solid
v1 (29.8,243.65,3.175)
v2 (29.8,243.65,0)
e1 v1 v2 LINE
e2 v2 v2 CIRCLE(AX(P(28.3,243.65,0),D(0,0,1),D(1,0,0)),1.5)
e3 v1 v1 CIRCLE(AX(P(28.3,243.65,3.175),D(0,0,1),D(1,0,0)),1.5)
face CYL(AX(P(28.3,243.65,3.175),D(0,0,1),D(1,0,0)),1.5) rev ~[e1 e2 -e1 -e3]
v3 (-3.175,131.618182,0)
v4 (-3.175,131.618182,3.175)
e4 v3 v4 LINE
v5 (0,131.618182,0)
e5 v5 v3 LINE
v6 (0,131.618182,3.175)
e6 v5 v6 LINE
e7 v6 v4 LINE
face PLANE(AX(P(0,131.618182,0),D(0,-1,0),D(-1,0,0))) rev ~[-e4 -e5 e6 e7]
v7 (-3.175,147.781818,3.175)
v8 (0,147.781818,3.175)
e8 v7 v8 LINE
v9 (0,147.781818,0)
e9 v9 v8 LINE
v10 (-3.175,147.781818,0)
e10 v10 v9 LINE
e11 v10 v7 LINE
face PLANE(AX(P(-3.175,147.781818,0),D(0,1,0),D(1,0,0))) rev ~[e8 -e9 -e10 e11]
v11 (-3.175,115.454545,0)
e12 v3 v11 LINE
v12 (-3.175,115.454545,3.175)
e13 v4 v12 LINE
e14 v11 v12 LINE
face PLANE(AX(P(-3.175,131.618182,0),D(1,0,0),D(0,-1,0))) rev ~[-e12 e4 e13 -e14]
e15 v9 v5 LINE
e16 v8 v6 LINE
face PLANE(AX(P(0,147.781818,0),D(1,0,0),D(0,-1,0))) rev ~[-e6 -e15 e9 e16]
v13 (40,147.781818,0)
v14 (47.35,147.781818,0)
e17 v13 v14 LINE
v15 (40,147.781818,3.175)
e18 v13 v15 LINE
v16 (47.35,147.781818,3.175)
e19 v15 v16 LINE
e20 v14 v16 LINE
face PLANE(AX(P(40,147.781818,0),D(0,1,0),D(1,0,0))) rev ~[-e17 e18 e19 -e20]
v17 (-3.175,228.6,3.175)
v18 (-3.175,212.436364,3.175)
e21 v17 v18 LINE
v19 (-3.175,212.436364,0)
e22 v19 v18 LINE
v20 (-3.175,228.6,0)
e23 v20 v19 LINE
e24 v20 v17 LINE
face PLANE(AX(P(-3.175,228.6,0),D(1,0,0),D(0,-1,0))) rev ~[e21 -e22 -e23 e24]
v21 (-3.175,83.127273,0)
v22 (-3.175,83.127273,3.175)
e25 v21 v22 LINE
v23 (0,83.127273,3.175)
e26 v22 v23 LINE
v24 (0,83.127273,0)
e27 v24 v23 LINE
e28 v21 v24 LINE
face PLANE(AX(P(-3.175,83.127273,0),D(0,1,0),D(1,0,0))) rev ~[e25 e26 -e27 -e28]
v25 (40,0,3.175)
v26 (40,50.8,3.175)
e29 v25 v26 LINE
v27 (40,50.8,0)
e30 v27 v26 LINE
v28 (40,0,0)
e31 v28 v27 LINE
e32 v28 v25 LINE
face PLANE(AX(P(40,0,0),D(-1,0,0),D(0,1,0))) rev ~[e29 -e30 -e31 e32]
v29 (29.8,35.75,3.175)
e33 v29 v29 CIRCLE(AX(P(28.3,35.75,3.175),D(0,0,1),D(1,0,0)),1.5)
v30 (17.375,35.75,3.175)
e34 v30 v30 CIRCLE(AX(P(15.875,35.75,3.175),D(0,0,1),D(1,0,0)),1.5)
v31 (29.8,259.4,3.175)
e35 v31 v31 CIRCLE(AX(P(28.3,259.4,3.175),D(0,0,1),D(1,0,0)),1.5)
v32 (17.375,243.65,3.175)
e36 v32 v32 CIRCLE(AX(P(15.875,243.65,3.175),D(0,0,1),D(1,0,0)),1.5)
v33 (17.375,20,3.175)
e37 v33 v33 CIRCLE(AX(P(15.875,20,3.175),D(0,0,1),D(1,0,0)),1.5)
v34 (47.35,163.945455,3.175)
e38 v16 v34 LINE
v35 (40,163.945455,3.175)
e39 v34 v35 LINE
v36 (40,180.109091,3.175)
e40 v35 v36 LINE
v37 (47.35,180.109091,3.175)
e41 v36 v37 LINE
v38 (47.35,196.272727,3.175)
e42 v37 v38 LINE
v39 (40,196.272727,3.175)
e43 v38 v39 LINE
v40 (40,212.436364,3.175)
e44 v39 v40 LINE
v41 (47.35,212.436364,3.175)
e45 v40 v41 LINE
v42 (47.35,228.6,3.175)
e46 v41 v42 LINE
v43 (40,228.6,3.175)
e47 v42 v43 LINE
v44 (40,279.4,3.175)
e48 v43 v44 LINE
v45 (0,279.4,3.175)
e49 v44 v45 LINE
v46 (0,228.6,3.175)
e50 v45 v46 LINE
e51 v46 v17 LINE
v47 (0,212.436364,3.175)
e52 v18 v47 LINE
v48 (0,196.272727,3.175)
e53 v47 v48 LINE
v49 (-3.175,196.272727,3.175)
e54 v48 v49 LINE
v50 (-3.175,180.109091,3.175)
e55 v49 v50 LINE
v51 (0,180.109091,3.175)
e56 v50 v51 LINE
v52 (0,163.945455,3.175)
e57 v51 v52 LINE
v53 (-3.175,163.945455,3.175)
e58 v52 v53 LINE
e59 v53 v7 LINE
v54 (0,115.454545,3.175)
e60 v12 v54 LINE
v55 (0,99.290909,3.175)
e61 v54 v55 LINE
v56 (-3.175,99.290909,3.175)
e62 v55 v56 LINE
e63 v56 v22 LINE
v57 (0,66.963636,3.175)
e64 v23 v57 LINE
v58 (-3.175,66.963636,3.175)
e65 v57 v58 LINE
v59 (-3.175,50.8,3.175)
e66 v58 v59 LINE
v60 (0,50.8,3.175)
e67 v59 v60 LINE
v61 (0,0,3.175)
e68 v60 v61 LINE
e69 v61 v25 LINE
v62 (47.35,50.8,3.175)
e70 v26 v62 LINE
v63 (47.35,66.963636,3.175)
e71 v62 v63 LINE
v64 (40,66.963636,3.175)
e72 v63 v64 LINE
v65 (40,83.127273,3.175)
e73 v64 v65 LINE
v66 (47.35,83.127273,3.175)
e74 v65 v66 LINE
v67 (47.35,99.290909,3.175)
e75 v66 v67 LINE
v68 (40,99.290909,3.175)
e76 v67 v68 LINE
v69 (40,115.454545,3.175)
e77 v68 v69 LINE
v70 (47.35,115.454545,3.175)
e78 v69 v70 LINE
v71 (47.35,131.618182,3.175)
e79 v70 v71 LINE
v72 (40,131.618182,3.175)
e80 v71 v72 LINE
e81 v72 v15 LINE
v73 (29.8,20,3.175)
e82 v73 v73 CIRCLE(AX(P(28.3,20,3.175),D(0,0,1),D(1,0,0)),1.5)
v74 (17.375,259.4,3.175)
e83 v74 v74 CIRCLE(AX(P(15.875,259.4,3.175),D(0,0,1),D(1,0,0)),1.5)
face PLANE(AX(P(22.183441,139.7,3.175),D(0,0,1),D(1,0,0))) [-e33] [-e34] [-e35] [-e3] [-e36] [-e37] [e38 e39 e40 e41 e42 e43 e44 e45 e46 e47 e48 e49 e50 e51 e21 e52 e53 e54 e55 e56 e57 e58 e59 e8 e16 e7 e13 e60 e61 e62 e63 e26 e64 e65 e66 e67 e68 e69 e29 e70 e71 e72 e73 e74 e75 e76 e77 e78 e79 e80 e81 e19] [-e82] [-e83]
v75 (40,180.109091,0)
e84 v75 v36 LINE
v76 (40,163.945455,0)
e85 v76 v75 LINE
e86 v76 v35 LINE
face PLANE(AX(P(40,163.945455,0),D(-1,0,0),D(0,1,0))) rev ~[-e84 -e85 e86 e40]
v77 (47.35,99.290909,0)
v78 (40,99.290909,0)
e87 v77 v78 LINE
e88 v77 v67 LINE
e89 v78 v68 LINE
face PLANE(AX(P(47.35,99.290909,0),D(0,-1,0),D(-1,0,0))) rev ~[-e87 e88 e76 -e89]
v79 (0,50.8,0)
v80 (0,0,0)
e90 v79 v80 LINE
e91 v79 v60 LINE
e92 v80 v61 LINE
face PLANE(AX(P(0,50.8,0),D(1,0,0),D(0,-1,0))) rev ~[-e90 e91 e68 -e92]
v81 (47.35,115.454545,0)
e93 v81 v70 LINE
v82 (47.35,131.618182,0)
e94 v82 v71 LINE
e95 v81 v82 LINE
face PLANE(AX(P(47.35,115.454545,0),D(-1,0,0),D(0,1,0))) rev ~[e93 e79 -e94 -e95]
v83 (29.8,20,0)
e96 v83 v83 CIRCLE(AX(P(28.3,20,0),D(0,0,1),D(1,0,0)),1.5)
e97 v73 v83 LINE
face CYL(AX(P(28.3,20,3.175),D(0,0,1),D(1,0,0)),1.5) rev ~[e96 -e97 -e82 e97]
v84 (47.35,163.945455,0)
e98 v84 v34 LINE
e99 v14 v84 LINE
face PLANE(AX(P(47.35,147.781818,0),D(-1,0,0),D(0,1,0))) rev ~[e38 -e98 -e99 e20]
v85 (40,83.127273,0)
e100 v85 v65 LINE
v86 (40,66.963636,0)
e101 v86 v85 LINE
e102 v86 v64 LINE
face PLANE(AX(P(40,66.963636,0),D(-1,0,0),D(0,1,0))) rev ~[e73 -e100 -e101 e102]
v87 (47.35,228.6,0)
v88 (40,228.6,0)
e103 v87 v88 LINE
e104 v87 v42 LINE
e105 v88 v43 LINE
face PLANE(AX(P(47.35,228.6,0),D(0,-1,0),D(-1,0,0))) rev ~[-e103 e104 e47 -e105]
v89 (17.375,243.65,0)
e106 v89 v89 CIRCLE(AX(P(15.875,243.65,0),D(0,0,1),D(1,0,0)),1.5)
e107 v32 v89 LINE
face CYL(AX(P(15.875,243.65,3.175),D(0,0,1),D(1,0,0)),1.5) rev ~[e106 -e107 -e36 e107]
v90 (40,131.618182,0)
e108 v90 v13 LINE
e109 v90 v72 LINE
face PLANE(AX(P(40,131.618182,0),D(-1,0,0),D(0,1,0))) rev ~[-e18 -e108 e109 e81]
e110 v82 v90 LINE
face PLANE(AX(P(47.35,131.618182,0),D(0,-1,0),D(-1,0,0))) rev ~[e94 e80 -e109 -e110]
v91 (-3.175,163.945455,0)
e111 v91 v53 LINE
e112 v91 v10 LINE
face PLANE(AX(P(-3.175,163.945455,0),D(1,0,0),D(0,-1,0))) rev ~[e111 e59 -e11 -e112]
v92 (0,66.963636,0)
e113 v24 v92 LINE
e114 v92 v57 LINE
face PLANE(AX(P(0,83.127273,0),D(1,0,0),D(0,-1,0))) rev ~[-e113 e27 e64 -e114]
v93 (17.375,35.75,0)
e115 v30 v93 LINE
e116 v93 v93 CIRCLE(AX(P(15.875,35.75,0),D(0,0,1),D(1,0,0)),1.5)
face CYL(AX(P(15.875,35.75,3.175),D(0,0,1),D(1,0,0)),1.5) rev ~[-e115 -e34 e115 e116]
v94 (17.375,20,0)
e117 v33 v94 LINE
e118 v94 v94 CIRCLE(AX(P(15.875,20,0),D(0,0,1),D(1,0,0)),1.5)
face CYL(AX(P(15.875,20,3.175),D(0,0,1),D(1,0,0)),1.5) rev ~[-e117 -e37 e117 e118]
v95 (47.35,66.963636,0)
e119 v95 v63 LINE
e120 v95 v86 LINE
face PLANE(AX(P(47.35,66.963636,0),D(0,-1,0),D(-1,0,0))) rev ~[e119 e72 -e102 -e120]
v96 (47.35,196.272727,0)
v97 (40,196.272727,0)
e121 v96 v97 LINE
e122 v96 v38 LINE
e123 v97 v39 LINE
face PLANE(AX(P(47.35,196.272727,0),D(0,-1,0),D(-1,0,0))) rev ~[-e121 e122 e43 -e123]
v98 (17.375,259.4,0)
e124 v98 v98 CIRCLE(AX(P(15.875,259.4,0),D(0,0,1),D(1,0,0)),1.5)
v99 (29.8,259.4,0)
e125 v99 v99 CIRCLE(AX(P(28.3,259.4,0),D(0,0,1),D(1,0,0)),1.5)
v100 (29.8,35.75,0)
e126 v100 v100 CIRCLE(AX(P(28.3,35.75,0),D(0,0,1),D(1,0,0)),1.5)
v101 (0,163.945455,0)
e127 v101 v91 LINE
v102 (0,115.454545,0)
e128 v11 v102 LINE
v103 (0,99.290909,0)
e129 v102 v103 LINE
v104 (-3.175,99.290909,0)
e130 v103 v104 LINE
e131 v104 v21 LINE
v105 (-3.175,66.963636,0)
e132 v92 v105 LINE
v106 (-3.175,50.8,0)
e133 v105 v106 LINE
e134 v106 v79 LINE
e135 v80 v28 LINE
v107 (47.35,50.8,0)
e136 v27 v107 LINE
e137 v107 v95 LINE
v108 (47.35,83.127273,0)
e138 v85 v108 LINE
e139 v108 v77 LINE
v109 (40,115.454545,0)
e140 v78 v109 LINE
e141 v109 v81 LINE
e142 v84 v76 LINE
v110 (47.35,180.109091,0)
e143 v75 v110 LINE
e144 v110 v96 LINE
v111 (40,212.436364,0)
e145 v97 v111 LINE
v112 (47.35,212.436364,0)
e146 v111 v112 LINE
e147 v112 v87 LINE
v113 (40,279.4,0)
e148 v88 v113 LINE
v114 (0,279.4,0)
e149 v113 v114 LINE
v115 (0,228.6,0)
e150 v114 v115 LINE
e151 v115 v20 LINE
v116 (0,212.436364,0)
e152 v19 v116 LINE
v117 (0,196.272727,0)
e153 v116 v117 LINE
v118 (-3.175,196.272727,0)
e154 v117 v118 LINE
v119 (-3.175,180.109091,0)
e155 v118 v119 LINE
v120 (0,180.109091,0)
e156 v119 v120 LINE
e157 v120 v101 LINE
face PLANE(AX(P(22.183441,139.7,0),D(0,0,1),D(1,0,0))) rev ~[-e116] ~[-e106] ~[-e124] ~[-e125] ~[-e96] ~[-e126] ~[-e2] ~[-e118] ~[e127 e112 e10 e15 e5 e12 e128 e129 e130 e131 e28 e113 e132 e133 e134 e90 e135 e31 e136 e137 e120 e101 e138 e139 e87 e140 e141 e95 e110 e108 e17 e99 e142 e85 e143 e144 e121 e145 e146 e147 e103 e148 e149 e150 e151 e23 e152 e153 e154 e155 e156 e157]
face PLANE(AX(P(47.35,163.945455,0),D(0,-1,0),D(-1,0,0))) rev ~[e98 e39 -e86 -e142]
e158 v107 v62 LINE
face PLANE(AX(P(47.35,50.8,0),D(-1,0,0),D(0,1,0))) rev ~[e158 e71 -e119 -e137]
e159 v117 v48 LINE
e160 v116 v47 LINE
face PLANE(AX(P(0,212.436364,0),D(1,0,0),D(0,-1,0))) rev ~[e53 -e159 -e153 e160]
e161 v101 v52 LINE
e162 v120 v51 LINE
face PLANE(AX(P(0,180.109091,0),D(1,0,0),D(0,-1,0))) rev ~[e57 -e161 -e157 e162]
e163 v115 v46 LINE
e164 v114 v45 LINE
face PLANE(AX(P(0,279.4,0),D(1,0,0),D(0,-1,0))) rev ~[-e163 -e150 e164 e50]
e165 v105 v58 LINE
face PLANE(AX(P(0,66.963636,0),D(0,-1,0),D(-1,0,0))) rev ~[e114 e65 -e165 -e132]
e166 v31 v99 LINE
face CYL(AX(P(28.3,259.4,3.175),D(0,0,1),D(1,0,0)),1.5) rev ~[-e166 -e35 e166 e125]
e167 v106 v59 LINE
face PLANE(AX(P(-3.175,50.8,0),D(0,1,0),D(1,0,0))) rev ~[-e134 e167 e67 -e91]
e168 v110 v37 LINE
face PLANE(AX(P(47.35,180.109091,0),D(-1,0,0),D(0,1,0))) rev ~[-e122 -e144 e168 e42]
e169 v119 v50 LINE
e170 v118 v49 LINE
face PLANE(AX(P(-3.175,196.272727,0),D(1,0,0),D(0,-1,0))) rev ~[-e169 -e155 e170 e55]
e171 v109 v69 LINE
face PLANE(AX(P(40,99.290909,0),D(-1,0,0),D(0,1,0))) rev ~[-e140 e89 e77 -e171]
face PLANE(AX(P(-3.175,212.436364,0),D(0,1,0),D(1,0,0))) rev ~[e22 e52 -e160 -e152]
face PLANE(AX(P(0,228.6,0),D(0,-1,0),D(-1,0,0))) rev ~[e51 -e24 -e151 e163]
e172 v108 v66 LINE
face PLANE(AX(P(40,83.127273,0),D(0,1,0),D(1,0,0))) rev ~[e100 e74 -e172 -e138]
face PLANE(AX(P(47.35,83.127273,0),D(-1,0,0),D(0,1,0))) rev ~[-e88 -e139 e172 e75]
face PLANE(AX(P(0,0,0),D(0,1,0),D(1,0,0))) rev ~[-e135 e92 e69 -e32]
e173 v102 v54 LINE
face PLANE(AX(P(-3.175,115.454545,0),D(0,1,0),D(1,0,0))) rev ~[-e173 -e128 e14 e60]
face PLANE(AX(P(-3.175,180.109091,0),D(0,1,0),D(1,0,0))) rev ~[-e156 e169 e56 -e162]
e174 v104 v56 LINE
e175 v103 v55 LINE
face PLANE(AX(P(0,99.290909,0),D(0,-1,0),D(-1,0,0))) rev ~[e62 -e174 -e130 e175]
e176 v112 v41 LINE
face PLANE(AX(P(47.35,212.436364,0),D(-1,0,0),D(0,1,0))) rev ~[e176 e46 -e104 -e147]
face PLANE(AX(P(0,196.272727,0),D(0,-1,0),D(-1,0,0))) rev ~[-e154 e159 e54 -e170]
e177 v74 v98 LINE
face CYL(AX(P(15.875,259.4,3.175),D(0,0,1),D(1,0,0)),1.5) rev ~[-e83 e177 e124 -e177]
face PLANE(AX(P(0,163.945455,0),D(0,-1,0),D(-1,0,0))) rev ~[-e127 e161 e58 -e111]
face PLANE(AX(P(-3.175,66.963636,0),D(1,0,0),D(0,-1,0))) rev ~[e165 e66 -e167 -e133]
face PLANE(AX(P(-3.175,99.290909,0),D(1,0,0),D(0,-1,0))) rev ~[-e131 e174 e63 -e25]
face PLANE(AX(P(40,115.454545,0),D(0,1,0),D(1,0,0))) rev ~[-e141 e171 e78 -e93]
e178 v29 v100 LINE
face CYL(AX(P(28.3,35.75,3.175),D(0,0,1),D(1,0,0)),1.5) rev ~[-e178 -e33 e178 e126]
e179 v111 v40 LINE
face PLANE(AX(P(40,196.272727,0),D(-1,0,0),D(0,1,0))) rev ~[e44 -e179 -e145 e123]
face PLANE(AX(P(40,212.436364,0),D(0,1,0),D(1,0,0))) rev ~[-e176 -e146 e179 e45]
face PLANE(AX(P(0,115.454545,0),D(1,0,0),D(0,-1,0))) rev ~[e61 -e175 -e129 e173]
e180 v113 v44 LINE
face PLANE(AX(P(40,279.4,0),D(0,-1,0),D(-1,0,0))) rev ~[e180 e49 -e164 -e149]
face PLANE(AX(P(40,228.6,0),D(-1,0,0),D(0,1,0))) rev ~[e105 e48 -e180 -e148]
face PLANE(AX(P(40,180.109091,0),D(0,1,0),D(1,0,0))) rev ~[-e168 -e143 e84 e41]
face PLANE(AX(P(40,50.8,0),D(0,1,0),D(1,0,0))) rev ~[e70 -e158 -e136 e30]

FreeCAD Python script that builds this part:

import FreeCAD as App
import Part
import Sketcher
Q = App.Units.Quantity


def add_polygon(sketch, points):
    """Adds a closed chain of lines whose ends are joined by coincident constraints."""
    first, n = sketch.GeometryCount, len(points)
    for a, b in zip(points, points[1:] + points[:1]):
        sketch.addGeometry(Part.LineSegment(App.Vector(*a, 0), App.Vector(*b, 0)), False)
    for i in range(n):
        sketch.addConstraint(Sketcher.Constraint("Coincident", first + i, 2, first + (i + 1) % n, 1))

doc = App.newDocument("Part")
params = doc.addObject("Spreadsheet::Sheet", "Params")
for row, (alias, value) in enumerate([
    ("sketch1_width", "40 mm"),
    ("sketch1_height", "50.8 mm"),
    ("sketch1_width2", "7.35 mm"),
    ("pad1_length", "3.175 mm"),
    ("sketch2_diameter", "3 mm"),
    ("pocket1_length", "3.175 mm"),
], start=1):
    params.set(f"A{row}", alias)
    params.set(f"B{row}", "=" + value)
    params.setAlias(f"B{row}", alias)

body = doc.addObject("PartDesign::Body", "Body")

sketch1 = body.newObject("Sketcher::SketchObject", "Sketch")
sketch1.AttachmentSupport = (doc.getObject("XY_Plane"), [""])
sketch1.MapMode = "FlatFace"
add_polygon(sketch1, [(40, 279.4), (0, 279.4), (0, 228.6), (-3.175, 228.6), (-3.175, 212.436364), (0, 212.436364), (0, 196.272727), (-3.175, 196.272727), (-3.175, 180.109091), (0, 180.109091), (0, 163.945455), (-3.175, 163.945455), (-3.175, 147.781818), (0, 147.781818), (0, 131.618182), (-3.175, 131.618182), (-3.175, 115.454545), (0, 115.454545), (0, 99.290909), (-3.175, 99.290909), (-3.175, 83.127273), (0, 83.127273), (0, 66.963636), (-3.175, 66.963636), (-3.175, 50.8), (0, 50.8), (0, 0), (40, 0), (40, 50.8), (47.35, 50.8), (47.35, 66.963636), (40, 66.963636), (40, 83.127273), (47.35, 83.127273), (47.35, 99.290909), (40, 99.290909), (40, 115.454545), (47.35, 115.454545), (47.35, 131.618182), (40, 131.618182), (40, 147.781818), (47.35, 147.781818), (47.35, 163.945455), (40, 163.945455), (40, 180.109091), (47.35, 180.109091), (47.35, 196.272727), (40, 196.272727), (40, 212.436364), (47.35, 212.436364), (47.35, 228.6), (40, 228.6)])
sketch1.addConstraint([
    Sketcher.Constraint("Horizontal", 0),
    Sketcher.Constraint("Vertical", 1),
    Sketcher.Constraint("Horizontal", 2),
    Sketcher.Constraint("Vertical", 3),
    Sketcher.Constraint("Horizontal", 4),
    Sketcher.Constraint("Vertical", 5),
    Sketcher.Constraint("Horizontal", 6),
    Sketcher.Constraint("Vertical", 7),
    Sketcher.Constraint("Horizontal", 8),
    Sketcher.Constraint("Vertical", 9),
    Sketcher.Constraint("Horizontal", 10),
    Sketcher.Constraint("Vertical", 11),
    Sketcher.Constraint("Horizontal", 12),
    Sketcher.Constraint("Vertical", 13),
    Sketcher.Constraint("Horizontal", 14),
    Sketcher.Constraint("Vertical", 15),
    Sketcher.Constraint("Horizontal", 16),
    Sketcher.Constraint("Vertical", 17),
    Sketcher.Constraint("Horizontal", 18),
    Sketcher.Constraint("Vertical", 19),
    Sketcher.Constraint("Horizontal", 20),
    Sketcher.Constraint("Vertical", 21),
    Sketcher.Constraint("Horizontal", 22),
    Sketcher.Constraint("Vertical", 23),
    Sketcher.Constraint("Horizontal", 24),
    Sketcher.Constraint("Vertical", 25),
    Sketcher.Constraint("Horizontal", 26),
    Sketcher.Constraint("Vertical", 27),
    Sketcher.Constraint("Horizontal", 28),
    Sketcher.Constraint("Vertical", 29),
    Sketcher.Constraint("Horizontal", 30),
    Sketcher.Constraint("Vertical", 31),
    Sketcher.Constraint("Horizontal", 32),
    Sketcher.Constraint("Vertical", 33),
    Sketcher.Constraint("Horizontal", 34),
    Sketcher.Constraint("Vertical", 35),
    Sketcher.Constraint("Horizontal", 36),
    Sketcher.Constraint("Vertical", 37),
    Sketcher.Constraint("Horizontal", 38),
    Sketcher.Constraint("Vertical", 39),
    Sketcher.Constraint("Horizontal", 40),
    Sketcher.Constraint("Vertical", 41),
    Sketcher.Constraint("Horizontal", 42),
    Sketcher.Constraint("Vertical", 43),
    Sketcher.Constraint("Horizontal", 44),
    Sketcher.Constraint("Vertical", 45),
    Sketcher.Constraint("Horizontal", 46),
    Sketcher.Constraint("Vertical", 47),
    Sketcher.Constraint("Horizontal", 48),
    Sketcher.Constraint("Vertical", 49),
    Sketcher.Constraint("Horizontal", 50),
    Sketcher.Constraint("Vertical", 51),
    Sketcher.Constraint("Coincident", 25, 2, -1, 1),
    Sketcher.Constraint("PointOnObject", 0, 2, -2),
    Sketcher.Constraint("PointOnObject", 4, 2, -2),
    Sketcher.Constraint("PointOnObject", 8, 2, -2),
    Sketcher.Constraint("PointOnObject", 12, 2, -2),
    Sketcher.Constraint("PointOnObject", 16, 2, -2),
    Sketcher.Constraint("PointOnObject", 20, 2, -2),
    Sketcher.Constraint("Horizontal", 24, 2, 27, 2),
    Sketcher.Constraint("Horizontal", 22, 2, 29, 2),
    Sketcher.Constraint("Horizontal", 20, 2, 31, 2),
    Sketcher.Constraint("Horizontal", 18, 2, 33, 2),
    Sketcher.Constraint("Horizontal", 16, 2, 35, 2),
    Sketcher.Constraint("Horizontal", 14, 2, 37, 2),
    Sketcher.Constraint("Horizontal", 12, 2, 39, 2),
    Sketcher.Constraint("Horizontal", 10, 2, 41, 2),
    Sketcher.Constraint("Horizontal", 8, 2, 43, 2),
    Sketcher.Constraint("Horizontal", 6, 2, 45, 2),
    Sketcher.Constraint("Horizontal", 4, 2, 47, 2),
    Sketcher.Constraint("Horizontal", 2, 2, 49, 2),
    Sketcher.Constraint("Vertical", 3, 2, 6, 2),
    Sketcher.Constraint("Vertical", 7, 2, 10, 2),
    Sketcher.Constraint("Vertical", 11, 2, 14, 2),
    Sketcher.Constraint("Vertical", 15, 2, 18, 2),
    Sketcher.Constraint("Vertical", 19, 2, 22, 2),
    Sketcher.Constraint("Vertical", 27, 2, 30, 2),
    Sketcher.Constraint("Vertical", 29, 2, 32, 2),
    Sketcher.Constraint("Vertical", 31, 2, 34, 2),
    Sketcher.Constraint("Vertical", 33, 2, 36, 2),
    Sketcher.Constraint("Vertical", 35, 2, 38, 2),
    Sketcher.Constraint("Vertical", 37, 2, 40, 2),
    Sketcher.Constraint("Vertical", 39, 2, 42, 2),
    Sketcher.Constraint("Vertical", 41, 2, 44, 2),
    Sketcher.Constraint("Vertical", 43, 2, 46, 2),
    Sketcher.Constraint("Vertical", 45, 2, 48, 2),
    Sketcher.Constraint("Vertical", 47, 2, 50, 2),
    Sketcher.Constraint("Equal", 3, 5),
    Sketcher.Constraint("Equal", 5, 7),
    Sketcher.Constraint("Equal", 7, 9),
    Sketcher.Constraint("Equal", 9, 11),
    Sketcher.Constraint("Equal", 11, 13),
    Sketcher.Constraint("Equal", 13, 15),
    Sketcher.Constraint("Equal", 15, 17),
    Sketcher.Constraint("Equal", 17, 19),
    Sketcher.Constraint("Equal", 19, 21),
    Sketcher.Constraint("Equal", 21, 23),
    Sketcher.Constraint("Equal", 1, 25),
    Sketcher.Constraint("DistanceX", 0, 2, 0, 1, Q("40 mm")),
    Sketcher.Constraint("DistanceY", 1, 2, 1, 1, Q("50.8 mm")),
    Sketcher.Constraint("DistanceX", 28, 1, 28, 2, Q("7.35 mm")),
    Sketcher.Constraint("DistanceY", -1, 1, 0, 2, Q("279.4 mm")),
    Sketcher.Constraint("DistanceX", 2, 2, 2, 1, Q("3.175 mm")),
])
sketch1.setExpression("Constraints[150]", "Params.sketch1_width")
sketch1.setExpression("Constraints[151]", "Params.sketch1_height")
sketch1.setExpression("Constraints[152]", "Params.sketch1_width2")
pad1 = body.newObject("PartDesign::Pad", "Pad")
pad1.Profile = sketch1
pad1.setExpression("Length", "Params.pad1_length")

sketch2 = body.newObject("Sketcher::SketchObject", "Sketch001")
sketch2.AttachmentSupport = (doc.getObject("XY_Plane"), [""])
sketch2.MapMode = "FlatFace"
sketch2.AttachmentOffset = App.Placement(App.Vector(0, 0, 3.175), App.Rotation())
sketch2.addGeometry([
    Part.Circle(App.Vector(15.875, 20, 0), App.Vector(0, 0, 1), 1.5),
    Part.Circle(App.Vector(15.875, 35.75, 0), App.Vector(0, 0, 1), 1.5),
    Part.Circle(App.Vector(15.875, 243.65, 0), App.Vector(0, 0, 1), 1.5),
    Part.Circle(App.Vector(15.875, 259.4, 0), App.Vector(0, 0, 1), 1.5),
    Part.Circle(App.Vector(28.3, 20, 0), App.Vector(0, 0, 1), 1.5),
    Part.Circle(App.Vector(28.3, 35.75, 0), App.Vector(0, 0, 1), 1.5),
    Part.Circle(App.Vector(28.3, 243.65, 0), App.Vector(0, 0, 1), 1.5),
    Part.Circle(App.Vector(28.3, 259.4, 0), App.Vector(0, 0, 1), 1.5),
], False)
sketch2.addConstraint([
    Sketcher.Constraint("Equal", 0, 1),
    Sketcher.Constraint("Equal", 1, 2),
    Sketcher.Constraint("Equal", 2, 3),
    Sketcher.Constraint("Equal", 3, 4),
    Sketcher.Constraint("Equal", 4, 5),
    Sketcher.Constraint("Equal", 5, 6),
    Sketcher.Constraint("Equal", 6, 7),
    Sketcher.Constraint("Horizontal", 0, 3, 4, 3),
    Sketcher.Constraint("Horizontal", 1, 3, 5, 3),
    Sketcher.Constraint("Horizontal", 2, 3, 6, 3),
    Sketcher.Constraint("Horizontal", 3, 3, 7, 3),
    Sketcher.Constraint("Vertical", 0, 3, 1, 3),
    Sketcher.Constraint("Vertical", 1, 3, 2, 3),
    Sketcher.Constraint("Vertical", 2, 3, 3, 3),
    Sketcher.Constraint("Vertical", 4, 3, 5, 3),
    Sketcher.Constraint("Vertical", 5, 3, 6, 3),
    Sketcher.Constraint("Vertical", 6, 3, 7, 3),
    Sketcher.Constraint("Diameter", 0, Q("3 mm")),
    Sketcher.Constraint("DistanceY", -1, 1, 0, 3, Q("20 mm")),
    Sketcher.Constraint("DistanceY", -1, 1, 3, 3, Q("259.4 mm")),
    Sketcher.Constraint("DistanceX", -1, 1, 4, 3, Q("28.3 mm")),
    Sketcher.Constraint("DistanceY", 1, 3, 2, 3, Q("207.9 mm")),
    Sketcher.Constraint("DistanceY", -1, 1, 1, 3, Q("35.75 mm")),
    Sketcher.Constraint("DistanceX", -1, 1, 0, 3, Q("15.875 mm")),
])
sketch2.setExpression("Constraints[17]", "Params.sketch2_diameter")
pocket1 = body.newObject("PartDesign::Pocket", "Pocket")
pocket1.Profile = sketch2
pocket1.setExpression("Length", "Params.pocket1_length")

doc.recompute()
